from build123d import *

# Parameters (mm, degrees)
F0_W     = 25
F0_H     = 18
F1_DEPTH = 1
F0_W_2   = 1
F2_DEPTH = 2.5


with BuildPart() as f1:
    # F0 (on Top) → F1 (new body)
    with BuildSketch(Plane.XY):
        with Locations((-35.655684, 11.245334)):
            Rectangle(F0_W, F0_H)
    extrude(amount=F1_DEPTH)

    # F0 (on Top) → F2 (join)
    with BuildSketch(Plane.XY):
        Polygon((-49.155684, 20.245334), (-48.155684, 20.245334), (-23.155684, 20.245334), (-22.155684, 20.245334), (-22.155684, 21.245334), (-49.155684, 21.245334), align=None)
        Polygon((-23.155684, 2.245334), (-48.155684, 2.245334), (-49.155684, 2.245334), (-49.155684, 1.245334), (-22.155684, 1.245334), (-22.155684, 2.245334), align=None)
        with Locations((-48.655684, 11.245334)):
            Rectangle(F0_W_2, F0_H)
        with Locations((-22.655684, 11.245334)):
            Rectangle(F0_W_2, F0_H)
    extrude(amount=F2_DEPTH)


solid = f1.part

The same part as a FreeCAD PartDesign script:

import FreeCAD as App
import Part
import Sketcher
from FreeCAD import Vector
Q = App.Units.Quantity

doc = App.newDocument("Part")
body = doc.addObject("PartDesign::Body", "Body")

# Sketch on XY plane
sketch1 = doc.addObject("Sketcher::SketchObject", "Sketch")
body.addObject(sketch1)
sketch1.AttachmentSupport = (doc.XY_Plane, [""])
sketch1.MapMode = "FlatFace"
sketch1.addGeometry([
    Part.LineSegment(Vector(-48.155684, 20.245334, 0), Vector(-48.155684, 2.245334, 0)),
    Part.LineSegment(Vector(-48.155684, 2.245334, 0), Vector(-23.155684, 2.245334, 0)),
    Part.LineSegment(Vector(-23.155684, 2.245334, 0), Vector(-23.155684, 20.245334, 0)),
    Part.LineSegment(Vector(-23.155684, 20.245334, 0), Vector(-48.155684, 20.245334, 0)),
], False)
sketch1.addConstraint([
    Sketcher.Constraint("Coincident", 0, 2, 1, 1),
    Sketcher.Constraint("Coincident", 1, 2, 2, 1),
    Sketcher.Constraint("Coincident", 2, 2, 3, 1),
    Sketcher.Constraint("Coincident", 3, 2, 0, 1),
    Sketcher.Constraint("Vertical", 0),
    Sketcher.Constraint("Horizontal", 1),
    Sketcher.Constraint("Vertical", 2),
    Sketcher.Constraint("Horizontal", 3),
    Sketcher.Constraint("DistanceX", 1, 1, 1, 2, Q("25 mm")),
    Sketcher.Constraint("DistanceY", 0, 2, 0, 1, Q("18 mm")),
    Sketcher.Constraint("DistanceX", 0, 2, -1, 1, Q("48.155684 mm")),
    Sketcher.Constraint("DistanceY", -1, 1, 0, 2, Q("2.245334 mm")),
])
pad1 = doc.addObject("PartDesign::Pad", "Pad")
body.addObject(pad1)
pad1.Profile = sketch1
pad1.Length = 1

# Sketch on XY plane
sketch2 = doc.addObject("Sketcher::SketchObject", "Sketch001")
body.addObject(sketch2)
sketch2.AttachmentSupport = (doc.XY_Plane, [""])
sketch2.MapMode = "FlatFace"
sketch2.addGeometry([
    Part.LineSegment(Vector(-22.155684, 21.245334, 0), Vector(-49.155684, 21.245334, 0)),  # 0
    Part.LineSegment(Vector(-49.155684, 21.245334, 0), Vector(-49.155684, 1.245334, 0)),  # 1
    Part.LineSegment(Vector(-49.155684, 1.245334, 0), Vector(-22.155684, 1.245334, 0)),  # 2
    Part.LineSegment(Vector(-22.155684, 1.245334, 0), Vector(-22.155684, 21.245334, 0)),  # 3
    Part.LineSegment(Vector(-48.155684, 20.245334, 0), Vector(-23.155684, 20.245334, 0)),  # 4
    Part.LineSegment(Vector(-23.155684, 20.245334, 0), Vector(-23.155684, 2.245334, 0)),  # 5
    Part.LineSegment(Vector(-23.155684, 2.245334, 0), Vector(-48.155684, 2.245334, 0)),  # 6
    Part.LineSegment(Vector(-48.155684, 2.245334, 0), Vector(-48.155684, 20.245334, 0)),  # 7
], False)
sketch2.addConstraint([
    Sketcher.Constraint("Coincident", 0, 2, 1, 1),
    Sketcher.Constraint("Coincident", 1, 2, 2, 1),
    Sketcher.Constraint("Coincident", 2, 2, 3, 1),
    Sketcher.Constraint("Coincident", 3, 2, 0, 1),
    Sketcher.Constraint("Coincident", 4, 2, 5, 1),
    Sketcher.Constraint("Coincident", 5, 2, 6, 1),
    Sketcher.Constraint("Coincident", 6, 2, 7, 1),
    Sketcher.Constraint("Coincident", 7, 2, 4, 1),
    Sketcher.Constraint("Horizontal", 0),
    Sketcher.Constraint("Vertical", 1),
    Sketcher.Constraint("Horizontal", 2),
    Sketcher.Constraint("Vertical", 3),
    Sketcher.Constraint("Horizontal", 4),
    Sketcher.Constraint("Vertical", 5),
    Sketcher.Constraint("Horizontal", 6),
    Sketcher.Constraint("Vertical", 7),
    Sketcher.Constraint("DistanceX", 0, 2, 0, 1, Q("27 mm")),
    Sketcher.Constraint("DistanceX", 4, 1, 4, 2, Q("25 mm")),
    Sketcher.Constraint("DistanceY", 1, 2, 1, 1, Q("20 mm")),
    Sketcher.Constraint("DistanceY", 5, 2, 5, 1, Q("18 mm")),
    Sketcher.Constraint("DistanceX", 4, 2, 3, 2, Q("1 mm")),
    Sketcher.Constraint("DistanceY", 4, 2, 3, 2, Q("1 mm")),
    Sketcher.Constraint("DistanceX", 0, 2, -1, 1, Q("49.155684 mm")),
    Sketcher.Constraint("DistanceY", -1, 1, 0, 2, Q("21.245334 mm")),
])
pad2 = doc.addObject("PartDesign::Pad", "Pad001")
body.addObject(pad2)
pad2.Profile = sketch2
pad2.Length = 2.5

doc.recompute()
